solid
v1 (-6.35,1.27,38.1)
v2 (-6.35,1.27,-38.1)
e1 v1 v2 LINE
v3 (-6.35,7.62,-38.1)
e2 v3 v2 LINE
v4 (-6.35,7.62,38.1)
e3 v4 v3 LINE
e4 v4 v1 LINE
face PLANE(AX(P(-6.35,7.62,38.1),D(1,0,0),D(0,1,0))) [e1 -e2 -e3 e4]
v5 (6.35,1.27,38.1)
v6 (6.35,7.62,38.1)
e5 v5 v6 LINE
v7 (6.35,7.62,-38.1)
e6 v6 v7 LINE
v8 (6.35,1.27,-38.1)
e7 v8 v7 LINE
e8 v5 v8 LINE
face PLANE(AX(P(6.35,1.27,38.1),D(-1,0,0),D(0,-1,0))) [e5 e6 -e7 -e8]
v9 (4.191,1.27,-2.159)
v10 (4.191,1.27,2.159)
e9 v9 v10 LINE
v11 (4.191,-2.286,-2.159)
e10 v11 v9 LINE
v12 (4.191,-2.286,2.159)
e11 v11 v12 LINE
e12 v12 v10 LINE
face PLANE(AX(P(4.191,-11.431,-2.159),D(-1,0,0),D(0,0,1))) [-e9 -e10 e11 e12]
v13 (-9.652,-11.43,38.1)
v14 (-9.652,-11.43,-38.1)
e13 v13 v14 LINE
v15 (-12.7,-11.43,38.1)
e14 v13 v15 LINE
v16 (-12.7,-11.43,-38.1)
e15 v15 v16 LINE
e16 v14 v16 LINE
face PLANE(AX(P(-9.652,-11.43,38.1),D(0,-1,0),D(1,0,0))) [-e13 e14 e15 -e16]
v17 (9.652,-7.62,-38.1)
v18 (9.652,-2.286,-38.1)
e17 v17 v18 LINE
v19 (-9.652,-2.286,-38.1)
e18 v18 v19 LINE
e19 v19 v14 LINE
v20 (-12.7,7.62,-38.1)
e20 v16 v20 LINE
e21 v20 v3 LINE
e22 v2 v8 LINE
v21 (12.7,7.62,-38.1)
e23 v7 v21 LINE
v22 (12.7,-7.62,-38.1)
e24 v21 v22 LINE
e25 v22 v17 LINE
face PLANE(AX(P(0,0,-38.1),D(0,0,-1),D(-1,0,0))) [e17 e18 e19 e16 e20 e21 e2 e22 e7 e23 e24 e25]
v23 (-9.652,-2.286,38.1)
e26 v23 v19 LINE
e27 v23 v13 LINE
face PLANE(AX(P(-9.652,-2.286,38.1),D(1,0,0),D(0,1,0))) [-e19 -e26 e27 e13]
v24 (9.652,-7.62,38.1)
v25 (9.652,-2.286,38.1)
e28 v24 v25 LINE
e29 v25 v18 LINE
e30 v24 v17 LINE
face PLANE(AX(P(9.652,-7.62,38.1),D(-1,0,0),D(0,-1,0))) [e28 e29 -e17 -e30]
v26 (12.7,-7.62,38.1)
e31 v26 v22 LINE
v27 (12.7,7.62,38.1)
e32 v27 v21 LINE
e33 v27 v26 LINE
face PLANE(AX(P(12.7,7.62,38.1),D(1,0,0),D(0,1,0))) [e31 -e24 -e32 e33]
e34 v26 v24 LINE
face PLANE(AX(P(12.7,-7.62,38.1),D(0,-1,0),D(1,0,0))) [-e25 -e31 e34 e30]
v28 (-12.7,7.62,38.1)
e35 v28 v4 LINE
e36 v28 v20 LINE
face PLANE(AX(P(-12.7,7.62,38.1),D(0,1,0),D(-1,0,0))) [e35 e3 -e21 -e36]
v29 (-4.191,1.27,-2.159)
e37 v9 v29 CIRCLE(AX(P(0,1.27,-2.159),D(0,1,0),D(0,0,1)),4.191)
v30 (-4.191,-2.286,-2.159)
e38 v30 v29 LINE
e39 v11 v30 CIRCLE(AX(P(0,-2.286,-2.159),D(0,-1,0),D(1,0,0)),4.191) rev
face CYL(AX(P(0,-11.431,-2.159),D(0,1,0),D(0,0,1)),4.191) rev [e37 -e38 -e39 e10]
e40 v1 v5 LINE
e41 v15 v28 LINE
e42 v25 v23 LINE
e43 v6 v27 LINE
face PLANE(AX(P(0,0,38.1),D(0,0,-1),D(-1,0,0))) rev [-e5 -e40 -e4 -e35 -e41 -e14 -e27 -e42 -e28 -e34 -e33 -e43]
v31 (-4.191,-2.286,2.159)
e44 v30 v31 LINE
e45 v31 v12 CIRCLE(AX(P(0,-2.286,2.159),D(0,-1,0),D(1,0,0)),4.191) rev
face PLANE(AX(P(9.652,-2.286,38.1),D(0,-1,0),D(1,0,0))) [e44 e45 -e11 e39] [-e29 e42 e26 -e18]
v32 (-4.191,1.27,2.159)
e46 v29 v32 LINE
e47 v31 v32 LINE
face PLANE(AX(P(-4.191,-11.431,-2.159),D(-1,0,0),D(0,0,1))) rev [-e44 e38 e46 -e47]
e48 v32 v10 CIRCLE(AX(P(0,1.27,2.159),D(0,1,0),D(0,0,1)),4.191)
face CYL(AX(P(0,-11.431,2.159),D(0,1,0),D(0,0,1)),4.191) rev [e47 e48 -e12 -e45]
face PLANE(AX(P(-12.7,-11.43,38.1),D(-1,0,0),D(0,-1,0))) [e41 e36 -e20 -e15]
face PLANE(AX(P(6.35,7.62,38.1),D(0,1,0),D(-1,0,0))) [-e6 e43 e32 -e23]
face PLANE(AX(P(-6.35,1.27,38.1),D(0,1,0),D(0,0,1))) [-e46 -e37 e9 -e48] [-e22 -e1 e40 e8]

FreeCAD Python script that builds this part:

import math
import FreeCAD as App
import Part
import Sketcher
from FreeCAD import Vector
Q = App.Units.Quantity

doc = App.newDocument("Part")
body = doc.addObject("PartDesign::Body", "Body")

# Sketch on XY plane
sketch1 = body.newObject("Sketcher::SketchObject", "Sketch")
sketch1.AttachmentSupport = (doc.getObject("XY_Plane"), [""])
sketch1.MapMode = "FlatFace"
sketch1.addGeometry(Part.LineSegment(Vector(-6.35, 7.62, 0), Vector(-12.7, 7.62, 0)), False)
sketch1.addGeometry(Part.LineSegment(Vector(-12.7, 7.62, 0), Vector(-12.7, -11.43, 0)), False)
sketch1.addGeometry(Part.LineSegment(Vector(-12.7, -11.43, 0), Vector(-9.652, -11.43, 0)), False)
sketch1.addGeometry(Part.LineSegment(Vector(-9.652, -11.43, 0), Vector(-9.652, -2.286, 0)), False)
sketch1.addGeometry(Part.LineSegment(Vector(-9.652, -2.286, 0), Vector(9.652, -2.286, 0)), False)
sketch1.addGeometry(Part.LineSegment(Vector(9.652, -2.286, 0), Vector(9.652, -7.62, 0)), False)
sketch1.addGeometry(Part.LineSegment(Vector(9.652, -7.62, 0), Vector(12.7, -7.62, 0)), False)
sketch1.addGeometry(Part.LineSegment(Vector(12.7, -7.62, 0), Vector(12.7, 7.62, 0)), False)
sketch1.addGeometry(Part.LineSegment(Vector(12.7, 7.62, 0), Vector(6.35, 7.62, 0)), False)
sketch1.addGeometry(Part.LineSegment(Vector(6.35, 7.62, 0), Vector(6.35, 1.27, 0)), False)
sketch1.addGeometry(Part.LineSegment(Vector(6.35, 1.27, 0), Vector(-6.35, 1.27, 0)), False)
sketch1.addGeometry(Part.LineSegment(Vector(-6.35, 1.27, 0), Vector(-6.35, 7.62, 0)), False)
sketch1.addConstraint(Sketcher.Constraint("Coincident", 0, 2, 1, 1))
sketch1.addConstraint(Sketcher.Constraint("Coincident", 1, 2, 2, 1))
sketch1.addConstraint(Sketcher.Constraint("Coincident", 2, 2, 3, 1))
sketch1.addConstraint(Sketcher.Constraint("Coincident", 3, 2, 4, 1))
sketch1.addConstraint(Sketcher.Constraint("Coincident", 4, 2, 5, 1))
sketch1.addConstraint(Sketcher.Constraint("Coincident", 5, 2, 6, 1))
sketch1.addConstraint(Sketcher.Constraint("Coincident", 6, 2, 7, 1))
sketch1.addConstraint(Sketcher.Constraint("Coincident", 7, 2, 8, 1))
sketch1.addConstraint(Sketcher.Constraint("Coincident", 8, 2, 9, 1))
sketch1.addConstraint(Sketcher.Constraint("Coincident", 9, 2, 10, 1))
sketch1.addConstraint(Sketcher.Constraint("Coincident", 10, 2, 11, 1))
sketch1.addConstraint(Sketcher.Constraint("Coincident", 11, 2, 0, 1))
sketch1.addConstraint(Sketcher.Constraint("Horizontal", 0))
sketch1.addConstraint(Sketcher.Constraint("Vertical", 1))
sketch1.addConstraint(Sketcher.Constraint("Horizontal", 2))
sketch1.addConstraint(Sketcher.Constraint("Vertical", 3))
sketch1.addConstraint(Sketcher.Constraint("Horizontal", 4))
sketch1.addConstraint(Sketcher.Constraint("Vertical", 5))
sketch1.addConstraint(Sketcher.Constraint("Horizontal", 6))
sketch1.addConstraint(Sketcher.Constraint("Vertical", 7))
sketch1.addConstraint(Sketcher.Constraint("Horizontal", 8))
sketch1.addConstraint(Sketcher.Constraint("Vertical", 9))
sketch1.addConstraint(Sketcher.Constraint("Horizontal", 10))
sketch1.addConstraint(Sketcher.Constraint("Vertical", 11))
sketch1.addConstraint(Sketcher.Constraint("Symmetric", 0, 2, 6, 2, -1, 1))
sketch1.addConstraint(Sketcher.Constraint("Symmetric", 8, 2, 11, 2, -2))
sketch1.addConstraint(Sketcher.Constraint("Equal", 2, 6))
sketch1.addConstraint(Sketcher.Constraint("Equal", 8, 9))
sketch1.addConstraint(Sketcher.Constraint("DistanceX", 10, 2, 10, 1, Q("0.5 in")))
sketch1.addConstraint(Sketcher.Constraint("DistanceY", 7, 1, 7, 2, Q("0.6 in")))
sketch1.addConstraint(Sketcher.Constraint("DistanceX", 1, 2, 6, 2, Q("1 in")))
sketch1.addConstraint(Sketcher.Constraint("DistanceX", 2, 1, 2, 2, Q("0.12 in")))
sketch1.addConstraint(Sketcher.Constraint("DistanceY", 1, 2, 1, 1, Q("0.75 in")))
sketch1.addConstraint(Sketcher.Constraint("DistanceY", 3, 1, 3, 2, Q("0.36 in")))
pad1 = body.newObject("PartDesign::Pad", "Pad")
pad1.Profile = sketch1
pad1.Length = Q("3 in")
pad1.Midplane = True

# Sketch on XZ plane
sketch2 = body.newObject("Sketcher::SketchObject", "Sketch001")
sketch2.AttachmentSupport = (doc.getObject("XZ_Plane"), [""])
sketch2.MapMode = "FlatFace"
sketch2.AttachmentOffset = App.Placement(Vector(0, 0, -0.05 * 25.4), App.Rotation())
sketch2.addGeometry(Part.LineSegment(Vector(4.191, 2.159, 0), Vector(4.191, -2.159, 0)), False)
sketch2.addGeometry(Part.ArcOfCircle(Part.Circle(Vector(0, -2.159, 0), Vector(0, 0, 1), 4.191), math.radians(180), math.radians(360)), False)
sketch2.addGeometry(Part.LineSegment(Vector(-4.191, -2.159, 0), Vector(-4.191, 2.159, 0)), False)
sketch2.addGeometry(Part.ArcOfCircle(Part.Circle(Vector(0, 2.159, 0), Vector(0, 0, 1), 4.191), math.radians(0), math.radians(180)), False)
sketch2.addConstraint(Sketcher.Constraint("Tangent", 0, 2, 1, 2))
sketch2.addConstraint(Sketcher.Constraint("Tangent", 1, 1, 2, 1))
sketch2.addConstraint(Sketcher.Constraint("Tangent", 2, 2, 3, 2))
sketch2.addConstraint(Sketcher.Constraint("Tangent", 3, 1, 0, 1))
sketch2.addConstraint(Sketcher.Constraint("Vertical", 0))
sketch2.addConstraint(Sketcher.Constraint("Vertical", 2))
sketch2.addConstraint(Sketcher.Constraint("Symmetric", 1, 3, 3, 3, -1, 1))
sketch2.addConstraint(Sketcher.Constraint("Radius", 1, Q("0.165 in")))
sketch2.addConstraint(Sketcher.Constraint("DistanceY", 0, 2, 0, 1, Q("0.17 in")))
pocket1 = body.newObject("PartDesign::Pocket", "Pocket")
pocket1.Profile = sketch2
pocket1.Type = "UpToFirst"
pocket1.Reversed = True

doc.recompute()
